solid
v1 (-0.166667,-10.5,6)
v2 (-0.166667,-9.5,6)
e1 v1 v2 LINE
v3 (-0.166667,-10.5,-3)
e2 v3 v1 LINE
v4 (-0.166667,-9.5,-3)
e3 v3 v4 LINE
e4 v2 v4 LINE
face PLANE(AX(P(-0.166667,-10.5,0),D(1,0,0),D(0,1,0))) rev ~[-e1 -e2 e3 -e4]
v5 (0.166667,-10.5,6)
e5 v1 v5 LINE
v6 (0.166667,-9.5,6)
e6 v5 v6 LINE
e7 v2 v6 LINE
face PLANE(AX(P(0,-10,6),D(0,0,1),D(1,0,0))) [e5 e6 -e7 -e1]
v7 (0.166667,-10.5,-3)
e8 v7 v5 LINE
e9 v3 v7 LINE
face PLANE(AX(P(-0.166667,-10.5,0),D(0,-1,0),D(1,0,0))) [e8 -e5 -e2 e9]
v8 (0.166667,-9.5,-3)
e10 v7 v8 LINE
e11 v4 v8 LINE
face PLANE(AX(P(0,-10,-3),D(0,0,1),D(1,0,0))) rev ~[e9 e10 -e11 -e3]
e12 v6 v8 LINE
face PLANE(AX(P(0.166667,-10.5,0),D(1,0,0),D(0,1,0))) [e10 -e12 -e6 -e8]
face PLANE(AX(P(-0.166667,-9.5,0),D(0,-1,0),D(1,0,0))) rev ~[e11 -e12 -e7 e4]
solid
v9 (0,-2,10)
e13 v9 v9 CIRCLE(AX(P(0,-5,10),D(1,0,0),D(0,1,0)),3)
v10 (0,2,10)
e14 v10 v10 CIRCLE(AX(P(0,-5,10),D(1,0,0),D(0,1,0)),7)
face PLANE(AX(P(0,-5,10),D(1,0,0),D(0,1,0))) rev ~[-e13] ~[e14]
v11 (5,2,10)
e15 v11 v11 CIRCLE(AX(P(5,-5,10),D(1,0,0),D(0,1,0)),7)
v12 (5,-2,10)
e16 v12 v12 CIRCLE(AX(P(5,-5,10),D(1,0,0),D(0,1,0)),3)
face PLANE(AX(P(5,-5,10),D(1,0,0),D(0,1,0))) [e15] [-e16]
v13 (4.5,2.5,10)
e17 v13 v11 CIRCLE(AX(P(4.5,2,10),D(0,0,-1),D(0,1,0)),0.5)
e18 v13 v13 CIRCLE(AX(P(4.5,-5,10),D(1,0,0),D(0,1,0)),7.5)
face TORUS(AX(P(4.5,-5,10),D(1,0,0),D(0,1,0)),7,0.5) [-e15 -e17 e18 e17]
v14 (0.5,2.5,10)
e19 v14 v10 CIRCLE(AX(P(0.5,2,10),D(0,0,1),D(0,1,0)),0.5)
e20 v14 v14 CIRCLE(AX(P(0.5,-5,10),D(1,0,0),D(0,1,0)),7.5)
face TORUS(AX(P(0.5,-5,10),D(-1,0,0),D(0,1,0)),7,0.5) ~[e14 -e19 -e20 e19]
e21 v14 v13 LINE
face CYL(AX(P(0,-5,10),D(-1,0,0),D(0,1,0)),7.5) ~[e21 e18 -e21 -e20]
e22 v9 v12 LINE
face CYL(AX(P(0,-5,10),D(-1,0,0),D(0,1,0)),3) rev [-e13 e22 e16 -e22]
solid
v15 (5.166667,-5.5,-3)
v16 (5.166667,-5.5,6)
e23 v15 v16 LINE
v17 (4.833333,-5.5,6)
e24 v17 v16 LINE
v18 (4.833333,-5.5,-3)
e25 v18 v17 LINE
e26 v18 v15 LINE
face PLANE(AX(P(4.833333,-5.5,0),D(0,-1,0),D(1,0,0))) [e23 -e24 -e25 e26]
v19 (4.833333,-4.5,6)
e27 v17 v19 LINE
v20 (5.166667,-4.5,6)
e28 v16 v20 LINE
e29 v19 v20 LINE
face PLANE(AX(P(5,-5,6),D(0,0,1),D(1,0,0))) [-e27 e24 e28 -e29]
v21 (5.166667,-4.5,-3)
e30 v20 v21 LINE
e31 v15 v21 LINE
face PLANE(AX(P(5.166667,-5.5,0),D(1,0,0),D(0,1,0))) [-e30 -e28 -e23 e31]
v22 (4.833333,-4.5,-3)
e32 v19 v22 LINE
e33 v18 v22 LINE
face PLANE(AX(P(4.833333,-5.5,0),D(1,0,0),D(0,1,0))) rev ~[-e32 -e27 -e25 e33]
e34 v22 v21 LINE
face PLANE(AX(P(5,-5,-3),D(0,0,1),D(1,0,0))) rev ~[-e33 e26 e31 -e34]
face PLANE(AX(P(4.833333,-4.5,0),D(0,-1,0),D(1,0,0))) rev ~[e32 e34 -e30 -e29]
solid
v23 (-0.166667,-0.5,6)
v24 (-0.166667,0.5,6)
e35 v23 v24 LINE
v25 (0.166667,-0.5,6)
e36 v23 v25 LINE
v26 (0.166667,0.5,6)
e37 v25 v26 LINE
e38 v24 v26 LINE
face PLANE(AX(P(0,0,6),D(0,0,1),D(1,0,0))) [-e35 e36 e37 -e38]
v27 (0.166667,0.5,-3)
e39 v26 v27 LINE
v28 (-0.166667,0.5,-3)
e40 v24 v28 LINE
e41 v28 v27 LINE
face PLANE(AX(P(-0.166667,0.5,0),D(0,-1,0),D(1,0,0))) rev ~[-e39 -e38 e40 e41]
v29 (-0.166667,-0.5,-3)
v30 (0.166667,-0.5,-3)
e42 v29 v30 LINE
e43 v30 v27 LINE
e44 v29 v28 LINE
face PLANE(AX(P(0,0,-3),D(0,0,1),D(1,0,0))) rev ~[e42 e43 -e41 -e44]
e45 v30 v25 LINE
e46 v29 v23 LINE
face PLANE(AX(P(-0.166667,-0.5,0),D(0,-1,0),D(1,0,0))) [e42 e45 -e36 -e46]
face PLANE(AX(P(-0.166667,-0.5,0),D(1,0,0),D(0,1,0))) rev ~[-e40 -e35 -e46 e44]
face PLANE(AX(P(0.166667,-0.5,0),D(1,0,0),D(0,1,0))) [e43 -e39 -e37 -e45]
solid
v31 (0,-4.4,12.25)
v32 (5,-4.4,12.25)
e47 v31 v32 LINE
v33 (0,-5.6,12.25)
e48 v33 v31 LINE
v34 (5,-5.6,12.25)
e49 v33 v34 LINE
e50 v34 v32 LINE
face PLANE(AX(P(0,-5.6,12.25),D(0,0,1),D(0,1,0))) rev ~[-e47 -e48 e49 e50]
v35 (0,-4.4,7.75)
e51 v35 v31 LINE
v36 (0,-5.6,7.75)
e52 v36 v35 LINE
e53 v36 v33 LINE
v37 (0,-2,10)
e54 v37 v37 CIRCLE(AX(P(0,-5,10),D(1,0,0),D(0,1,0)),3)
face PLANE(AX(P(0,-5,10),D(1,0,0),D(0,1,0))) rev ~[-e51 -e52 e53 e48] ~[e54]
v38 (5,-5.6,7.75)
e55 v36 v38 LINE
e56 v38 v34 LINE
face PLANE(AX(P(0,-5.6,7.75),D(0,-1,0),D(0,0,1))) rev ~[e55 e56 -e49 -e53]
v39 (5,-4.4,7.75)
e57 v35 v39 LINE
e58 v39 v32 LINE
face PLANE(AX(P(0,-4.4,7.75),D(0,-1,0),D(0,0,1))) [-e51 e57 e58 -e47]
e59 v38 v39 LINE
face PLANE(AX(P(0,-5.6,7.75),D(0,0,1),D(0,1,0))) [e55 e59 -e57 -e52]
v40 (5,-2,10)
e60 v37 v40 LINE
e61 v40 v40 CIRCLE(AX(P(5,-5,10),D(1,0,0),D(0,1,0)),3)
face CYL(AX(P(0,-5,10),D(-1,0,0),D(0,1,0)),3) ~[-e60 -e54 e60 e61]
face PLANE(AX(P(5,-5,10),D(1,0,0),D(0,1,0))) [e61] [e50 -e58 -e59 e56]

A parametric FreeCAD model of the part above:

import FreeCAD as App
import Part
import Sketcher

V = App.Vector
Q = App.Units.Quantity


def edges_at(feature, points):
    """Names of the edges that pass closest to the given points."""
    edges = feature.Shape.Edges
    near = lambda p: min(range(len(edges)), key=lambda i: edges[i].distToShape(Part.Vertex(*p))[0])
    return sorted({f"Edge{near(p) + 1}" for p in points})


def add_polygon(sketch, points):
    """Adds a closed chain of lines whose ends are joined by coincident constraints."""
    first, n = sketch.GeometryCount, len(points)
    for a, b in zip(points, points[1:] + points[:1]):
        sketch.addGeometry(Part.LineSegment(App.Vector(*a, 0), App.Vector(*b, 0)), False)
    for i in range(n):
        sketch.addConstraint(Sketcher.Constraint("Coincident", first + i, 2, first + (i + 1) % n, 1))

doc = App.newDocument("Part")
body = doc.addObject("PartDesign::Body", "Body")

# Sketch on YZ plane
sketch1 = body.newObject("Sketcher::SketchObject", "Sketch")
sketch1.AttachmentSupport = (doc.getObject("YZ_Plane"), [""])
sketch1.MapMode = "FlatFace"
sketch1.addGeometry(Part.Circle(V(-5, 10, 0), V(0, 0, 1), 3), False)  # 0
add_polygon(sketch1, [(-4.4, 7.75), (-5.6, 7.75), (-5.6, 12.25), (-4.4, 12.25)])  # lines 1-4
sketch1.addConstraint([
    Sketcher.Constraint("Horizontal", 1),
    Sketcher.Constraint("Vertical", 2),
    Sketcher.Constraint("Horizontal", 3),
    Sketcher.Constraint("Vertical", 4),
    Sketcher.Constraint("Diameter", 0, Q("6 mm")),
    Sketcher.Constraint("DistanceX", 1, 2, 1, 1, Q("1.2 mm")),
    Sketcher.Constraint("DistanceY", 2, 1, 2, 2, Q("4.5 mm")),
    Sketcher.Constraint("DistanceX", 0, 3, -1, 1, Q("5 mm")),
    Sketcher.Constraint("DistanceY", -1, 1, 0, 3, Q("10 mm")),
    Sketcher.Constraint("DistanceX", 1, 2, -1, 1, Q("5.6 mm")),
    Sketcher.Constraint("DistanceY", -1, 1, 1, 2, Q("7.75 mm")),
])
pad1 = body.newObject("PartDesign::Pad", "Pad")
pad1.Profile = sketch1
pad1.Length = 5
body2 = doc.addObject("PartDesign::Body", "Body001")

# Sketch on YZ plane
sketch2 = body2.newObject("Sketcher::SketchObject", "Sketch001")
sketch2.AttachmentSupport = (doc.getObject("YZ_Plane001"), [""])
sketch2.MapMode = "FlatFace"
sketch2.addGeometry([
    Part.Circle(V(-5, 10, 0), V(0, 0, 1), 7.5),
    Part.Circle(V(-5, 10, 0), V(0, 0, 1), 3),
], False)
sketch2.addConstraint([
    Sketcher.Constraint("Coincident", 1, 3, 0, 3),
    Sketcher.Constraint("Diameter", 0, Q("15 mm")),
    Sketcher.Constraint("Diameter", 1, Q("6 mm")),
    Sketcher.Constraint("DistanceX", 0, 3, -1, 1, Q("5 mm")),
    Sketcher.Constraint("DistanceY", -1, 1, 0, 3, Q("10 mm")),
])
pad2 = body2.newObject("PartDesign::Pad", "Pad001")
pad2.Profile = sketch2
pad2.Length = 5
doc.recompute()

fillet = body2.newObject("PartDesign::Fillet", "Fillet")
fillet.Base = (pad2, edges_at(pad2, [(0, -12.5, 10), (5, -12.5, 10)]))
fillet.Radius = 0.5
body3 = doc.addObject("PartDesign::Body", "Body002")
body3.AllowCompound = True

# Sketch on XY plane
sketch3 = body3.newObject("Sketcher::SketchObject", "Sketch002")
sketch3.AttachmentSupport = (doc.getObject("XY_Plane002"), [""])
sketch3.MapMode = "FlatFace"
add_polygon(sketch3, [(-0.166667, 0.5), (-0.166667, -0.5), (0.166667, -0.5), (0.166667, 0.5)])  # lines 0-3
add_polygon(sketch3, [(4.833333, -4.5), (4.833333, -5.5), (5.166667, -5.5), (5.166667, -4.5)])  # lines 4-7
add_polygon(sketch3, [(-0.166667, -9.5), (-0.166667, -10.5), (0.166667, -10.5), (0.166667, -9.5)])  # lines 8-11
sketch3.addConstraint([
    Sketcher.Constraint("Vertical", 0),
    Sketcher.Constraint("Horizontal", 1),
    Sketcher.Constraint("Vertical", 2),
    Sketcher.Constraint("Horizontal", 3),
    Sketcher.Constraint("Vertical", 4),
    Sketcher.Constraint("Horizontal", 5),
    Sketcher.Constraint("Vertical", 6),
    Sketcher.Constraint("Horizontal", 7),
    Sketcher.Constraint("Vertical", 8),
    Sketcher.Constraint("Horizontal", 9),
    Sketcher.Constraint("Vertical", 10),
    Sketcher.Constraint("Horizontal", 11),
    Sketcher.Constraint("Symmetric", 0, 2, 2, 2, -1, 1),
    Sketcher.Constraint("Vertical", 3, 2, 8, 2),
    Sketcher.Constraint("Vertical", 2, 2, 9, 2),
    Sketcher.Constraint("Equal", 3, 5),
    Sketcher.Constraint("Equal", 2, 4),
    Sketcher.Constraint("Equal", 6, 8),
    Sketcher.Constraint("DistanceY", 0, 2, 0, 1, Q("1 mm")),
    Sketcher.Constraint("DistanceY", 4, 2, 1, 2, Q("5 mm")),
    Sketcher.Constraint("DistanceX", 0, 2, 4, 2, Q("5 mm")),
    Sketcher.Constraint("DistanceY", 8, 2, 4, 2, Q("5 mm")),
    Sketcher.Constraint("DistanceX", 1, 1, 1, 2, Q("0.333334 mm")),
])
pad3 = body3.newObject("PartDesign::Pad", "Pad002")
pad3.Profile = sketch3
pad3.Type = "TwoLengths"
pad3.Length = 6
pad3.Length2 = 3

doc.recompute()
